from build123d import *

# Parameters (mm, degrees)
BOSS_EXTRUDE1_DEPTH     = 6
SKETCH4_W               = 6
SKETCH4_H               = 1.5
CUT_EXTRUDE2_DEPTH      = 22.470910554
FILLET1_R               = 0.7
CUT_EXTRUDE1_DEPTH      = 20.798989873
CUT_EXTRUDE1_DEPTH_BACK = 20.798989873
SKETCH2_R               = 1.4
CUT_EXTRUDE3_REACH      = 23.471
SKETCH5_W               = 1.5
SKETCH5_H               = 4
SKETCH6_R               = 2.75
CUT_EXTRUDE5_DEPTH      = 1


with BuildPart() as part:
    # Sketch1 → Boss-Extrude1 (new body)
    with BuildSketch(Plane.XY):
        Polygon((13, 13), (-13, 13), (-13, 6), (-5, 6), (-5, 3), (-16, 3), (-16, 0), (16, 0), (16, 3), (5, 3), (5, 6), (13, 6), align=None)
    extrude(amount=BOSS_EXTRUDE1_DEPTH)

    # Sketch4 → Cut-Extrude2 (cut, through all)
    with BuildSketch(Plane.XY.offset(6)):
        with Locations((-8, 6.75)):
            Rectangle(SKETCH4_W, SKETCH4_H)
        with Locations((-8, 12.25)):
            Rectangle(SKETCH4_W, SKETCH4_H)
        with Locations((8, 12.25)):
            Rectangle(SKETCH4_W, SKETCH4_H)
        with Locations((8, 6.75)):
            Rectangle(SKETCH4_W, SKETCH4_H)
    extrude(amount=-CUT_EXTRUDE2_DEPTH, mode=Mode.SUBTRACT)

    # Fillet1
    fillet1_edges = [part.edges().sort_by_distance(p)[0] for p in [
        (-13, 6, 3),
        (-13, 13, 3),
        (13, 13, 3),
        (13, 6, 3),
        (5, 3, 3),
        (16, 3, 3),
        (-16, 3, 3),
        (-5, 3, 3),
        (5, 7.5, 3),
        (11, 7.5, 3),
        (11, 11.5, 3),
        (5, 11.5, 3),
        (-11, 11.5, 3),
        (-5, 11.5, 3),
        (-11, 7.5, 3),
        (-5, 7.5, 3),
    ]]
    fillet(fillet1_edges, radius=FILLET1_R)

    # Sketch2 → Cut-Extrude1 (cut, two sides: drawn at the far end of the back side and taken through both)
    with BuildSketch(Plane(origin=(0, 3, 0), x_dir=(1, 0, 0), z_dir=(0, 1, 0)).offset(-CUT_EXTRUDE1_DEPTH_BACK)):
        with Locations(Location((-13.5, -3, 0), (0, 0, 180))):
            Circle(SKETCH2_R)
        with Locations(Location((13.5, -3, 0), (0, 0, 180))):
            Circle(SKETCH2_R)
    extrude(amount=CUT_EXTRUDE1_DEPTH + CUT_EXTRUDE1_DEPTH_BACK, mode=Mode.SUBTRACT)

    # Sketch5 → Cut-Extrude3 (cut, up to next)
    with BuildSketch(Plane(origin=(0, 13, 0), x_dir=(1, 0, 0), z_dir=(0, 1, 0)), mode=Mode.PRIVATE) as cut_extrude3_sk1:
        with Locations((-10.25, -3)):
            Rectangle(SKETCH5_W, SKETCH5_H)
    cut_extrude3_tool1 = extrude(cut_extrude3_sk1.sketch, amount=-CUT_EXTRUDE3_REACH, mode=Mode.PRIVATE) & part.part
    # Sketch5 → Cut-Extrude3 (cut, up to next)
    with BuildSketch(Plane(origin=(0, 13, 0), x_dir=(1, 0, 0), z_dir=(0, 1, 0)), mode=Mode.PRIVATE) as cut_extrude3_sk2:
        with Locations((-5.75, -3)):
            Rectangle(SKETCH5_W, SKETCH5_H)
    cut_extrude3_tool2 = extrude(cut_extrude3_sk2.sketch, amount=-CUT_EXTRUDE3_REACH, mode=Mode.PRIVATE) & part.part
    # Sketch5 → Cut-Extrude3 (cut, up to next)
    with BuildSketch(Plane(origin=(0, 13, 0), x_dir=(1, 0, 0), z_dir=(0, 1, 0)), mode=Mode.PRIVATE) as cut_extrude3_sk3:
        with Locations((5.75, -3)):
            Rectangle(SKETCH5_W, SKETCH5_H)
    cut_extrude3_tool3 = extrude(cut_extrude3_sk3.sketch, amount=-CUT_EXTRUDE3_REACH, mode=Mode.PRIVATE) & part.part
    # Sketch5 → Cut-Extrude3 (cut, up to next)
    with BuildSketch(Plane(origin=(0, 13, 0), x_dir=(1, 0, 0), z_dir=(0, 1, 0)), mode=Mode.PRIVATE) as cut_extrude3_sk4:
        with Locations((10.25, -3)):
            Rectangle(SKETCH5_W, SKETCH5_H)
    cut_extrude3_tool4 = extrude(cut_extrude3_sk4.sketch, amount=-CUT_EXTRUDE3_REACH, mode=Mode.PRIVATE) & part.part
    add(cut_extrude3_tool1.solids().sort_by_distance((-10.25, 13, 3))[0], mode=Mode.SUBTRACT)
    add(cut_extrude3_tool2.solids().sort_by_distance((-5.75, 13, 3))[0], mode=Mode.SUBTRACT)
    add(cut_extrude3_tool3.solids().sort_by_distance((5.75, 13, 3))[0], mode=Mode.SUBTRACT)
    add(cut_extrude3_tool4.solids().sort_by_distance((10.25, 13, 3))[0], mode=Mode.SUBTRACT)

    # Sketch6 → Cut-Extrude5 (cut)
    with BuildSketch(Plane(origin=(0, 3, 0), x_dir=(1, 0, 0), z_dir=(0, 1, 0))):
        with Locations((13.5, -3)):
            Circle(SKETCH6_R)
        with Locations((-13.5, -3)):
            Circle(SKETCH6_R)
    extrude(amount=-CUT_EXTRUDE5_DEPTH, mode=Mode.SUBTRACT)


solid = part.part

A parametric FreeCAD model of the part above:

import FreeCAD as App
import Part
import Sketcher

V = App.Vector
Q = App.Units.Quantity


def edges_at(feature, points):
    """Names of the edges that pass closest to the given points."""
    edges = feature.Shape.Edges
    near = lambda p: min(range(len(edges)), key=lambda i: edges[i].distToShape(Part.Vertex(*p))[0])
    return sorted({f"Edge{near(p) + 1}" for p in points})

doc = App.newDocument("Part")
body = doc.addObject("PartDesign::Body", "Body")

sketch1 = body.newObject("Sketcher::SketchObject", "Sketch")
sketch1.AttachmentSupport = (doc.getObject("XY_Plane"), [""])
sketch1.MapMode = "FlatFace"
sketch1.addGeometry(Part.LineSegment(V(13, 13, 0), V(-13, 13, 0)), False)
sketch1.addGeometry(Part.LineSegment(V(-13, 13, 0), V(-13, 6, 0)), False)
sketch1.addGeometry(Part.LineSegment(V(-13, 6, 0), V(-5, 6, 0)), False)
sketch1.addGeometry(Part.LineSegment(V(-5, 6, 0), V(-5, 3, 0)), False)
sketch1.addGeometry(Part.LineSegment(V(-5, 3, 0), V(-16, 3, 0)), False)
sketch1.addGeometry(Part.LineSegment(V(-16, 3, 0), V(-16, 0, 0)), False)
sketch1.addGeometry(Part.LineSegment(V(-16, 0, 0), V(16, 0, 0)), False)
sketch1.addGeometry(Part.LineSegment(V(16, 0, 0), V(16, 3, 0)), False)
sketch1.addGeometry(Part.LineSegment(V(16, 3, 0), V(5, 3, 0)), False)
sketch1.addGeometry(Part.LineSegment(V(5, 3, 0), V(5, 6, 0)), False)
sketch1.addGeometry(Part.LineSegment(V(5, 6, 0), V(13, 6, 0)), False)
sketch1.addGeometry(Part.LineSegment(V(13, 6, 0), V(13, 13, 0)), False)
sketch1.addConstraint(Sketcher.Constraint("Coincident", 0, 2, 1, 1))
sketch1.addConstraint(Sketcher.Constraint("Coincident", 1, 2, 2, 1))
sketch1.addConstraint(Sketcher.Constraint("Coincident", 2, 2, 3, 1))
sketch1.addConstraint(Sketcher.Constraint("Coincident", 3, 2, 4, 1))
sketch1.addConstraint(Sketcher.Constraint("Coincident", 4, 2, 5, 1))
sketch1.addConstraint(Sketcher.Constraint("Coincident", 5, 2, 6, 1))
sketch1.addConstraint(Sketcher.Constraint("Coincident", 6, 2, 7, 1))
sketch1.addConstraint(Sketcher.Constraint("Coincident", 7, 2, 8, 1))
sketch1.addConstraint(Sketcher.Constraint("Coincident", 8, 2, 9, 1))
sketch1.addConstraint(Sketcher.Constraint("Coincident", 9, 2, 10, 1))
sketch1.addConstraint(Sketcher.Constraint("Coincident", 10, 2, 11, 1))
sketch1.addConstraint(Sketcher.Constraint("Coincident", 11, 2, 0, 1))
sketch1.addConstraint(Sketcher.Constraint("Horizontal", 0))
sketch1.addConstraint(Sketcher.Constraint("Vertical", 1))
sketch1.addConstraint(Sketcher.Constraint("Horizontal", 2))
sketch1.addConstraint(Sketcher.Constraint("Vertical", 3))
sketch1.addConstraint(Sketcher.Constraint("Horizontal", 4))
sketch1.addConstraint(Sketcher.Constraint("Vertical", 5))
sketch1.addConstraint(Sketcher.Constraint("Horizontal", 6))
sketch1.addConstraint(Sketcher.Constraint("Vertical", 7))
sketch1.addConstraint(Sketcher.Constraint("Horizontal", 8))
sketch1.addConstraint(Sketcher.Constraint("Vertical", 9))
sketch1.addConstraint(Sketcher.Constraint("Horizontal", 10))
sketch1.addConstraint(Sketcher.Constraint("Vertical", 11))
sketch1.addConstraint(Sketcher.Constraint("Symmetric", 5, 2, 6, 2, -1, 1))
sketch1.addConstraint(Sketcher.Constraint("Symmetric", 3, 2, 8, 2, -2))
sketch1.addConstraint(Sketcher.Constraint("Symmetric", 1, 2, 10, 2, -2))
sketch1.addConstraint(Sketcher.Constraint("Equal", 3, 5))
sketch1.addConstraint(Sketcher.Constraint("DistanceX", 0, 2, 0, 1, Q("26 mm")))
sketch1.addConstraint(Sketcher.Constraint("DistanceX", 2, 1, 2, 2, Q("8 mm")))
sketch1.addConstraint(Sketcher.Constraint("DistanceX", 4, 2, 4, 1, Q("11 mm")))
sketch1.addConstraint(Sketcher.Constraint("DistanceY", 1, 2, 1, 1, Q("7 mm")))
sketch1.addConstraint(Sketcher.Constraint("DistanceY", 3, 2, 3, 1, Q("3 mm")))
pad1 = body.newObject("PartDesign::Pad", "Pad")
pad1.Profile = sketch1
pad1.Length = 6

sketch2 = body.newObject("Sketcher::SketchObject", "Sketch001")
sketch2.AttachmentSupport = (doc.getObject("XY_Plane"), [""])
sketch2.MapMode = "FlatFace"
sketch2.AttachmentOffset = App.Placement(V(0, 0, 6), App.Rotation())
sketch2.addGeometry(Part.LineSegment(V(-11, 7.5, 0), V(-11, 6, 0)), False)
sketch2.addGeometry(Part.LineSegment(V(-11, 6, 0), V(-5, 6, 0)), False)
sketch2.addGeometry(Part.LineSegment(V(-5, 6, 0), V(-5, 7.5, 0)), False)
sketch2.addGeometry(Part.LineSegment(V(-5, 7.5, 0), V(-11, 7.5, 0)), False)
sketch2.addGeometry(Part.LineSegment(V(-11, 13, 0), V(-11, 11.5, 0)), False)
sketch2.addGeometry(Part.LineSegment(V(-11, 11.5, 0), V(-5, 11.5, 0)), False)
sketch2.addGeometry(Part.LineSegment(V(-5, 11.5, 0), V(-5, 13, 0)), False)
sketch2.addGeometry(Part.LineSegment(V(-5, 13, 0), V(-11, 13, 0)), False)
sketch2.addGeometry(Part.LineSegment(V(5, 13, 0), V(5, 11.5, 0)), False)
sketch2.addGeometry(Part.LineSegment(V(5, 11.5, 0), V(11, 11.5, 0)), False)
sketch2.addGeometry(Part.LineSegment(V(11, 11.5, 0), V(11, 13, 0)), False)
sketch2.addGeometry(Part.LineSegment(V(11, 13, 0), V(5, 13, 0)), False)
sketch2.addGeometry(Part.LineSegment(V(5, 7.5, 0), V(5, 6, 0)), False)
sketch2.addGeometry(Part.LineSegment(V(5, 6, 0), V(11, 6, 0)), False)
sketch2.addGeometry(Part.LineSegment(V(11, 6, 0), V(11, 7.5, 0)), False)
sketch2.addGeometry(Part.LineSegment(V(11, 7.5, 0), V(5, 7.5, 0)), False)
sketch2.addConstraint(Sketcher.Constraint("Coincident", 0, 2, 1, 1))
sketch2.addConstraint(Sketcher.Constraint("Coincident", 1, 2, 2, 1))
sketch2.addConstraint(Sketcher.Constraint("Coincident", 2, 2, 3, 1))
sketch2.addConstraint(Sketcher.Constraint("Coincident", 3, 2, 0, 1))
sketch2.addConstraint(Sketcher.Constraint("Coincident", 4, 2, 5, 1))
sketch2.addConstraint(Sketcher.Constraint("Coincident", 5, 2, 6, 1))
sketch2.addConstraint(Sketcher.Constraint("Coincident", 6, 2, 7, 1))
sketch2.addConstraint(Sketcher.Constraint("Coincident", 7, 2, 4, 1))
sketch2.addConstraint(Sketcher.Constraint("Coincident", 8, 2, 9, 1))
sketch2.addConstraint(Sketcher.Constraint("Coincident", 9, 2, 10, 1))
sketch2.addConstraint(Sketcher.Constraint("Coincident", 10, 2, 11, 1))
sketch2.addConstraint(Sketcher.Constraint("Coincident", 11, 2, 8, 1))
sketch2.addConstraint(Sketcher.Constraint("Coincident", 12, 2, 13, 1))
sketch2.addConstraint(Sketcher.Constraint("Coincident", 13, 2, 14, 1))
sketch2.addConstraint(Sketcher.Constraint("Coincident", 14, 2, 15, 1))
sketch2.addConstraint(Sketcher.Constraint("Coincident", 15, 2, 12, 1))
sketch2.addConstraint(Sketcher.Constraint("Vertical", 0))
sketch2.addConstraint(Sketcher.Constraint("Horizontal", 1))
sketch2.addConstraint(Sketcher.Constraint("Vertical", 2))
sketch2.addConstraint(Sketcher.Constraint("Horizontal", 3))
sketch2.addConstraint(Sketcher.Constraint("Vertical", 4))
sketch2.addConstraint(Sketcher.Constraint("Horizontal", 5))
sketch2.addConstraint(Sketcher.Constraint("Vertical", 6))
sketch2.addConstraint(Sketcher.Constraint("Horizontal", 7))
sketch2.addConstraint(Sketcher.Constraint("Vertical", 8))
sketch2.addConstraint(Sketcher.Constraint("Horizontal", 9))
sketch2.addConstraint(Sketcher.Constraint("Vertical", 10))
sketch2.addConstraint(Sketcher.Constraint("Horizontal", 11))
sketch2.addConstraint(Sketcher.Constraint("Vertical", 12))
sketch2.addConstraint(Sketcher.Constraint("Horizontal", 13))
sketch2.addConstraint(Sketcher.Constraint("Vertical", 14))
sketch2.addConstraint(Sketcher.Constraint("Horizontal", 15))
sketch2.addConstraint(Sketcher.Constraint("Symmetric", 5, 2, 8, 2, -2))
sketch2.addConstraint(Sketcher.Constraint("Symmetric", 7, 2, 10, 2, -2))
sketch2.addConstraint(Sketcher.Constraint("Symmetric", 1, 2, 12, 2, -2))
sketch2.addConstraint(Sketcher.Constraint("Symmetric", 3, 2, 14, 2, -2))
sketch2.addConstraint(Sketcher.Constraint("Vertical", 3, 2, 4, 2))
sketch2.addConstraint(Sketcher.Constraint("Vertical", 2, 2, 5, 2))
sketch2.addConstraint(Sketcher.Constraint("Equal", 2, 4))
sketch2.addConstraint(Sketcher.Constraint("DistanceX", 1, 1, 1, 2, Q("6 mm")))
sketch2.addConstraint(Sketcher.Constraint("DistanceY", 0, 2, 0, 1, Q("1.5 mm")))
sketch2.addConstraint(Sketcher.Constraint("DistanceX", 0, 2, -1, 1, Q("11 mm")))
sketch2.addConstraint(Sketcher.Constraint("DistanceY", -1, 1, 0, 2, Q("6 mm")))
sketch2.addConstraint(Sketcher.Constraint("DistanceY", -1, 1, 6, 2, Q("13 mm")))
pocket1 = body.newObject("PartDesign::Pocket", "Pocket")
pocket1.Profile = sketch2
pocket1.Type = "ThroughAll"
doc.recompute()

fillet = body.newObject("PartDesign::Fillet", "Fillet")
fillet.Base = (pocket1, edges_at(pocket1, [
    (-13, 6, 3),
    (-13, 13, 3),
    (13, 13, 3),
    (13, 6, 3),
    (5, 3, 3),
    (16, 3, 3),
    (-16, 3, 3),
    (-5, 3, 3),
    (5, 7.5, 3),
    (11, 7.5, 3),
    (11, 11.5, 3),
    (5, 11.5, 3),
    (-11, 11.5, 3),
    (-5, 11.5, 3),
    (-11, 7.5, 3),
    (-5, 7.5, 3),
]))
fillet.Radius = 0.7

sketch3 = body.newObject("Sketcher::SketchObject", "Sketch002")
sketch3.AttachmentSupport = (doc.getObject("XZ_Plane"), [""])
sketch3.MapMode = "FlatFace"
sketch3.AttachmentOffset = App.Placement(V(0, 0, -3), App.Rotation())
sketch3.addGeometry(Part.Circle(V(-13.5, 3, 0), V(0, 0, 1), 1.4), False)
sketch3.addGeometry(Part.Circle(V(13.5, 3, 0), V(0, 0, 1), 1.4), False)
sketch3.addConstraint(Sketcher.Constraint("Equal", 0, 1))
sketch3.addConstraint(Sketcher.Constraint("Symmetric", 0, 3, 1, 3, -2))
sketch3.addConstraint(Sketcher.Constraint("Diameter", 0, Q("2.8 mm")))
sketch3.addConstraint(Sketcher.Constraint("DistanceY", -1, 1, 0, 3, Q("3 mm")))
sketch3.addConstraint(Sketcher.Constraint("DistanceX", 0, 3, 1, 3, Q("27 mm")))
pocket2 = body.newObject("PartDesign::Pocket", "Pocket001")
pocket2.Profile = sketch3
pocket2.Type = "ThroughAll"
pocket2.Midplane = True

sketch4 = body.newObject("Sketcher::SketchObject", "Sketch003")
sketch4.AttachmentSupport = (doc.getObject("XZ_Plane"), [""])
sketch4.MapMode = "FlatFace"
sketch4.AttachmentOffset = App.Placement(V(0, 0, -13), App.Rotation())
sketch4.addGeometry(Part.LineSegment(V(-11, 1, 0), V(-11, 5, 0)), False)
sketch4.addGeometry(Part.LineSegment(V(-11, 5, 0), V(-9.5, 5, 0)), False)
sketch4.addGeometry(Part.LineSegment(V(-9.5, 5, 0), V(-9.5, 1, 0)), False)
sketch4.addGeometry(Part.LineSegment(V(-9.5, 1, 0), V(-11, 1, 0)), False)
sketch4.addConstraint(Sketcher.Constraint("Coincident", 0, 2, 1, 1))
sketch4.addConstraint(Sketcher.Constraint("Coincident", 1, 2, 2, 1))
sketch4.addConstraint(Sketcher.Constraint("Coincident", 2, 2, 3, 1))
sketch4.addConstraint(Sketcher.Constraint("Coincident", 3, 2, 0, 1))
sketch4.addConstraint(Sketcher.Constraint("Vertical", 0))
sketch4.addConstraint(Sketcher.Constraint("Horizontal", 1))
sketch4.addConstraint(Sketcher.Constraint("Vertical", 2))
sketch4.addConstraint(Sketcher.Constraint("Horizontal", 3))
sketch4.addConstraint(Sketcher.Constraint("DistanceY", 0, 1, 0, 2, Q("4 mm")))
sketch4.addConstraint(Sketcher.Constraint("DistanceX", 1, 1, 1, 2, Q("1.5 mm")))
sketch4.addConstraint(Sketcher.Constraint("DistanceX", 0, 2, -1, 1, Q("11 mm")))
sketch4.addConstraint(Sketcher.Constraint("DistanceY", -1, 1, 0, 2, Q("5 mm")))
pocket3 = body.newObject("PartDesign::Pocket", "Pocket002")
pocket3.Profile = sketch4
pocket3.Length = 6.2
pocket3.Reversed = True

sketch5 = body.newObject("Sketcher::SketchObject", "Sketch004")
sketch5.AttachmentSupport = (doc.getObject("XZ_Plane"), [""])
sketch5.MapMode = "FlatFace"
sketch5.AttachmentOffset = App.Placement(V(0, 0, -13), App.Rotation())
sketch5.addGeometry(Part.LineSegment(V(-6.5, 1, 0), V(-6.5, 5, 0)), False)
sketch5.addGeometry(Part.LineSegment(V(-6.5, 5, 0), V(-5, 5, 0)), False)
sketch5.addGeometry(Part.LineSegment(V(-5, 5, 0), V(-5, 1, 0)), False)
sketch5.addGeometry(Part.LineSegment(V(-5, 1, 0), V(-6.5, 1, 0)), False)
sketch5.addConstraint(Sketcher.Constraint("Coincident", 0, 2, 1, 1))
sketch5.addConstraint(Sketcher.Constraint("Coincident", 1, 2, 2, 1))
sketch5.addConstraint(Sketcher.Constraint("Coincident", 2, 2, 3, 1))
sketch5.addConstraint(Sketcher.Constraint("Coincident", 3, 2, 0, 1))
sketch5.addConstraint(Sketcher.Constraint("Vertical", 0))
sketch5.addConstraint(Sketcher.Constraint("Horizontal", 1))
sketch5.addConstraint(Sketcher.Constraint("Vertical", 2))
sketch5.addConstraint(Sketcher.Constraint("Horizontal", 3))
sketch5.addConstraint(Sketcher.Constraint("DistanceY", 0, 1, 0, 2, Q("4 mm")))
sketch5.addConstraint(Sketcher.Constraint("DistanceX", 1, 1, 1, 2, Q("1.5 mm")))
sketch5.addConstraint(Sketcher.Constraint("DistanceY", -1, 1, 0, 2, Q("5 mm")))
sketch5.addConstraint(Sketcher.Constraint("DistanceX", 1, 2, -1, 1, Q("5 mm")))
pocket4 = body.newObject("PartDesign::Pocket", "Pocket003")
pocket4.Profile = sketch5
pocket4.Length = 6.2
pocket4.Reversed = True

sketch6 = body.newObject("Sketcher::SketchObject", "Sketch005")
sketch6.AttachmentSupport = (doc.getObject("XZ_Plane"), [""])
sketch6.MapMode = "FlatFace"
sketch6.AttachmentOffset = App.Placement(V(0, 0, -13), App.Rotation())
sketch6.addGeometry(Part.LineSegment(V(5, 1, 0), V(5, 5, 0)), False)
sketch6.addGeometry(Part.LineSegment(V(5, 5, 0), V(6.5, 5, 0)), False)
sketch6.addGeometry(Part.LineSegment(V(6.5, 5, 0), V(6.5, 1, 0)), False)
sketch6.addGeometry(Part.LineSegment(V(6.5, 1, 0), V(5, 1, 0)), False)
sketch6.addConstraint(Sketcher.Constraint("Coincident", 0, 2, 1, 1))
sketch6.addConstraint(Sketcher.Constraint("Coincident", 1, 2, 2, 1))
sketch6.addConstraint(Sketcher.Constraint("Coincident", 2, 2, 3, 1))
sketch6.addConstraint(Sketcher.Constraint("Coincident", 3, 2, 0, 1))
sketch6.addConstraint(Sketcher.Constraint("Vertical", 0))
sketch6.addConstraint(Sketcher.Constraint("Horizontal", 1))
sketch6.addConstraint(Sketcher.Constraint("Vertical", 2))
sketch6.addConstraint(Sketcher.Constraint("Horizontal", 3))
sketch6.addConstraint(Sketcher.Constraint("DistanceY", 0, 1, 0, 2, Q("4 mm")))
sketch6.addConstraint(Sketcher.Constraint("DistanceX", 1, 1, 1, 2, Q("1.5 mm")))
sketch6.addConstraint(Sketcher.Constraint("DistanceX", -1, 1, 0, 2, Q("5 mm")))
sketch6.addConstraint(Sketcher.Constraint("DistanceY", -1, 1, 0, 2, Q("5 mm")))
pocket5 = body.newObject("PartDesign::Pocket", "Pocket004")
pocket5.Profile = sketch6
pocket5.Length = 6.2
pocket5.Reversed = True

sketch7 = body.newObject("Sketcher::SketchObject", "Sketch006")
sketch7.AttachmentSupport = (doc.getObject("XZ_Plane"), [""])
sketch7.MapMode = "FlatFace"
sketch7.AttachmentOffset = App.Placement(V(0, 0, -13), App.Rotation())
sketch7.addGeometry(Part.LineSegment(V(9.5, 1, 0), V(9.5, 5, 0)), False)
sketch7.addGeometry(Part.LineSegment(V(9.5, 5, 0), V(11, 5, 0)), False)
sketch7.addGeometry(Part.LineSegment(V(11, 5, 0), V(11, 1, 0)), False)
sketch7.addGeometry(Part.LineSegment(V(11, 1, 0), V(9.5, 1, 0)), False)
sketch7.addConstraint(Sketcher.Constraint("Coincident", 0, 2, 1, 1))
sketch7.addConstraint(Sketcher.Constraint("Coincident", 1, 2, 2, 1))
sketch7.addConstraint(Sketcher.Constraint("Coincident", 2, 2, 3, 1))
sketch7.addConstraint(Sketcher.Constraint("Coincident", 3, 2, 0, 1))
sketch7.addConstraint(Sketcher.Constraint("Vertical", 0))
sketch7.addConstraint(Sketcher.Constraint("Horizontal", 1))
sketch7.addConstraint(Sketcher.Constraint("Vertical", 2))
sketch7.addConstraint(Sketcher.Constraint("Horizontal", 3))
sketch7.addConstraint(Sketcher.Constraint("DistanceY", 0, 1, 0, 2, Q("4 mm")))
sketch7.addConstraint(Sketcher.Constraint("DistanceX", 1, 1, 1, 2, Q("1.5 mm")))
sketch7.addConstraint(Sketcher.Constraint("DistanceY", -1, 1, 0, 2, Q("5 mm")))
sketch7.addConstraint(Sketcher.Constraint("DistanceX", -1, 1, 1, 2, Q("11 mm")))
pocket6 = body.newObject("PartDesign::Pocket", "Pocket005")
pocket6.Profile = sketch7
pocket6.Length = 6.2
pocket6.Reversed = True

sketch8 = body.newObject("Sketcher::SketchObject", "Sketch007")
sketch8.AttachmentSupport = (doc.getObject("XZ_Plane"), [""])
sketch8.MapMode = "FlatFace"
sketch8.AttachmentOffset = App.Placement(V(0, 0, -3), App.Rotation())
sketch8.addGeometry(Part.Circle(V(13.5, 3, 0), V(0, 0, 1), 2.8), False)
sketch8.addGeometry(Part.Circle(V(-13.5, 3, 0), V(0, 0, 1), 2.8), False)
sketch8.addConstraint(Sketcher.Constraint("Equal", 0, 1))
sketch8.addConstraint(Sketcher.Constraint("Symmetric", 0, 3, 1, 3, -2))
sketch8.addConstraint(Sketcher.Constraint("Diameter", 0, Q("5.5 mm")))
sketch8.addConstraint(Sketcher.Constraint("DistanceY", -1, 1, 0, 3, Q("3 mm")))
sketch8.addConstraint(Sketcher.Constraint("DistanceX", 1, 3, 0, 3, Q("27 mm")))
pocket7 = body.newObject("PartDesign::Pocket", "Pocket006")
pocket7.Profile = sketch8
pocket7.Length = 1
pocket7.Reversed = True

doc.recompute()
